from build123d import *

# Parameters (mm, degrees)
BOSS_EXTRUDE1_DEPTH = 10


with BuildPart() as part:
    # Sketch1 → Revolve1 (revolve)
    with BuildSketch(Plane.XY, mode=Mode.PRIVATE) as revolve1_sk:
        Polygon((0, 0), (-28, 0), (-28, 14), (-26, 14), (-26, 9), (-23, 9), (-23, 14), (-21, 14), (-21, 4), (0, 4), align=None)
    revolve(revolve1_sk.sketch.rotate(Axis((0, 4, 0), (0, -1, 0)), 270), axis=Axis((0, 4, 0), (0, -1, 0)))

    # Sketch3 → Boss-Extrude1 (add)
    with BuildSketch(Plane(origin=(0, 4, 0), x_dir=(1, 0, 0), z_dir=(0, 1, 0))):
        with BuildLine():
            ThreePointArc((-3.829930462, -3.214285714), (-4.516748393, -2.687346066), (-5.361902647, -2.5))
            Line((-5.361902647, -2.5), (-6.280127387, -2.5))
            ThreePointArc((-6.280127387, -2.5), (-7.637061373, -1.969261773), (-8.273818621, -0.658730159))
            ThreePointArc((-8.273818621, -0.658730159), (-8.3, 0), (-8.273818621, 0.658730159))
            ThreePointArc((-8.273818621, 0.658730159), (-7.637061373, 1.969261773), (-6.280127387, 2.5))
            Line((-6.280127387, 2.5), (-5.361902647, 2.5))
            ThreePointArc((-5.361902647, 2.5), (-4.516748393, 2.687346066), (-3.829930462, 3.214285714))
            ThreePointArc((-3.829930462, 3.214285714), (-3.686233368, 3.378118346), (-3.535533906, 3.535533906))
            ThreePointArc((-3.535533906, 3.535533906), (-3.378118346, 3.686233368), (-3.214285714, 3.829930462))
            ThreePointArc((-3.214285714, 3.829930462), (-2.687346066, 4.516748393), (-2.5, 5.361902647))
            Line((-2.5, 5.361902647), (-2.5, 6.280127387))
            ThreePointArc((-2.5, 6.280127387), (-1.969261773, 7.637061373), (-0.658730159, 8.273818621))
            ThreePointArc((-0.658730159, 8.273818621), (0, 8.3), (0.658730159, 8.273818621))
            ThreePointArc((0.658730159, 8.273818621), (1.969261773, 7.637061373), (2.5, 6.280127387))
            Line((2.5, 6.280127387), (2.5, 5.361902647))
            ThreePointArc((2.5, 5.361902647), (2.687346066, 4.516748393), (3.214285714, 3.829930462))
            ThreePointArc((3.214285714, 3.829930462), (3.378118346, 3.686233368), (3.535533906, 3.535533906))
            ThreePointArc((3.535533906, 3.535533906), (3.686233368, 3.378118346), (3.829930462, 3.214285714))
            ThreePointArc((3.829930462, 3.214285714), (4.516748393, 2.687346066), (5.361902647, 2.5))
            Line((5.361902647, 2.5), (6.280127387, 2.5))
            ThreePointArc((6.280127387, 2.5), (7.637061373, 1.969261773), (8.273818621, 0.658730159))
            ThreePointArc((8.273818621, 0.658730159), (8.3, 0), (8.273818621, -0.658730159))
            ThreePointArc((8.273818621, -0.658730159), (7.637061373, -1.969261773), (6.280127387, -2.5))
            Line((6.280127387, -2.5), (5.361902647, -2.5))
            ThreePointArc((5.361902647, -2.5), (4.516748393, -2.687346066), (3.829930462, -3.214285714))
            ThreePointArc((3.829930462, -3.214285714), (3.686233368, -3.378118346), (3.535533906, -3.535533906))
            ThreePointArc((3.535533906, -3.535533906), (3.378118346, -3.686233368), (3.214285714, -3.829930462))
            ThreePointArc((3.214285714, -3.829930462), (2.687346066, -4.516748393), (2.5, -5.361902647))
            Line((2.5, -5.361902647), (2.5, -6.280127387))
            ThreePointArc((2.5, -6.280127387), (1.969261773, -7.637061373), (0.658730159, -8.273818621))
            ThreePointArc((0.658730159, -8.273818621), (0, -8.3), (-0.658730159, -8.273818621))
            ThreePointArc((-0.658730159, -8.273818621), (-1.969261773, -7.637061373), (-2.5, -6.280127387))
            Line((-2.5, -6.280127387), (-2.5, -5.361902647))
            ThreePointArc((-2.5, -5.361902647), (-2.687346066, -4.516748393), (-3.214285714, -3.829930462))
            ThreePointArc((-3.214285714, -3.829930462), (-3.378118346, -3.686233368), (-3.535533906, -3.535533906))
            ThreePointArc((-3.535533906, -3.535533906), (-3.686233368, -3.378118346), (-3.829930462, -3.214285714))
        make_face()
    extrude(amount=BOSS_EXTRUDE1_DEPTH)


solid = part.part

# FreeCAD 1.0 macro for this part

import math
import FreeCAD as App
import Part
import Sketcher
from FreeCAD import Vector
Q = App.Units.Quantity

doc = App.newDocument("Part")
body = doc.addObject("PartDesign::Body", "Body")

sketch1 = body.newObject("Sketcher::SketchObject", "Sketch")
sketch1.AttachmentSupport = (doc.getObject("XY_Plane"), [""])
sketch1.MapMode = "FlatFace"
sketch1.addGeometry([
    Part.LineSegment(Vector(-28, 0, 0), Vector(0, 0, 0)),
    Part.LineSegment(Vector(0, 0, 0), Vector(0, 4, 0)),
    Part.LineSegment(Vector(0, 4, 0), Vector(-21, 4, 0)),
    Part.LineSegment(Vector(-21, 4, 0), Vector(-21, 14, 0)),
    Part.LineSegment(Vector(-21, 14, 0), Vector(-23, 14, 0)),
    Part.LineSegment(Vector(-23, 14, 0), Vector(-23, 9, 0)),
    Part.LineSegment(Vector(-23, 9, 0), Vector(-26, 9, 0)),
    Part.LineSegment(Vector(-26, 9, 0), Vector(-26, 14, 0)),
    Part.LineSegment(Vector(-26, 14, 0), Vector(-28, 14, 0)),
    Part.LineSegment(Vector(-28, 14, 0), Vector(-28, 0, 0)),
], False)
sketch1.addConstraint([
    Sketcher.Constraint("Coincident", 0, 2, 1, 1),
    Sketcher.Constraint("Coincident", 1, 2, 2, 1),
    Sketcher.Constraint("Coincident", 2, 2, 3, 1),
    Sketcher.Constraint("Coincident", 3, 2, 4, 1),
    Sketcher.Constraint("Coincident", 4, 2, 5, 1),
    Sketcher.Constraint("Coincident", 5, 2, 6, 1),
    Sketcher.Constraint("Coincident", 6, 2, 7, 1),
    Sketcher.Constraint("Coincident", 7, 2, 8, 1),
    Sketcher.Constraint("Coincident", 8, 2, 9, 1),
    Sketcher.Constraint("Coincident", 9, 2, 0, 1),
    Sketcher.Constraint("Horizontal", 0),
    Sketcher.Constraint("Vertical", 1),
    Sketcher.Constraint("Horizontal", 2),
    Sketcher.Constraint("Vertical", 3),
    Sketcher.Constraint("Horizontal", 4),
    Sketcher.Constraint("Vertical", 5),
    Sketcher.Constraint("Horizontal", 6),
    Sketcher.Constraint("Vertical", 7),
    Sketcher.Constraint("Horizontal", 8),
    Sketcher.Constraint("Vertical", 9),
    Sketcher.Constraint("Coincident", 0, 2, -1, 1),
    Sketcher.Constraint("Horizontal", 4, 2, 7, 2),
    Sketcher.Constraint("Equal", 4, 8),
    Sketcher.Constraint("DistanceX", 0, 1, 0, 2, Q("28 mm")),
    Sketcher.Constraint("DistanceX", 2, 2, 2, 1, Q("21 mm")),
    Sketcher.Constraint("DistanceX", 4, 2, 4, 1, Q("2 mm")),
    Sketcher.Constraint("DistanceY", 1, 1, 1, 2, Q("4 mm")),
    Sketcher.Constraint("DistanceY", 3, 1, 3, 2, Q("10 mm")),
    Sketcher.Constraint("DistanceY", 5, 2, 5, 1, Q("5 mm")),
])
revolution = body.newObject("PartDesign::Revolution", "Revolution")
revolution.Profile = sketch1
revolution.ReferenceAxis = (sketch1, ["V_Axis"])
revolution.Angle = 360

sketch2 = body.newObject("Sketcher::SketchObject", "Sketch001")
sketch2.AttachmentSupport = (doc.getObject("XZ_Plane"), [""])
sketch2.MapMode = "FlatFace"
sketch2.AttachmentOffset = App.Placement(Vector(0, 0, -4), App.Rotation())
sketch2.addGeometry([
    Part.ArcOfCircle(Part.Circle(Vector(-5.36, 4.5, 0), Vector(0, 0, 1), 2), math.radians(-90), math.radians(-40)),
    Part.ArcOfCircle(Part.Circle(Vector(0, 0, 0), Vector(0, 0, 1), 5), math.radians(135), math.radians(139.99)),
    Part.ArcOfCircle(Part.Circle(Vector(0, 0, 0), Vector(0, 0, 1), 5), math.radians(130.01), math.radians(135)),
    Part.ArcOfCircle(Part.Circle(Vector(-4.5, 5.36, 0), Vector(0, 0, 1), 2), math.radians(-50), math.radians(0)),
    Part.LineSegment(Vector(-2.5, 5.36, 0), Vector(-2.5, 6.28, 0)),
    Part.ArcOfCircle(Part.Circle(Vector(-0.5, 6.28, 0), Vector(0, 0, 1), 2), math.radians(95), math.radians(180)),
    Part.ArcOfCircle(Part.Circle(Vector(0, 0, 0), Vector(0, 0, 1), 8.3), math.radians(85.45), math.radians(94.55)),
    Part.ArcOfCircle(Part.Circle(Vector(0.5, 6.28, 0), Vector(0, 0, 1), 2), math.radians(0), math.radians(85)),
    Part.LineSegment(Vector(2.5, 6.28, 0), Vector(2.5, 5.36, 0)),
    Part.ArcOfCircle(Part.Circle(Vector(4.5, 5.36, 0), Vector(0, 0, 1), 2), math.radians(-180), math.radians(-130)),
    Part.ArcOfCircle(Part.Circle(Vector(0, 0, 0), Vector(0, 0, 1), 5), math.radians(45), math.radians(49.99)),
    Part.ArcOfCircle(Part.Circle(Vector(0, 0, 0), Vector(0, 0, 1), 5), math.radians(40.01), math.radians(45)),
    Part.ArcOfCircle(Part.Circle(Vector(5.36, 4.5, 0), Vector(0, 0, 1), 2), math.radians(-140), math.radians(-90)),
    Part.LineSegment(Vector(5.36, 2.5, 0), Vector(6.28, 2.5, 0)),
    Part.ArcOfCircle(Part.Circle(Vector(6.28, 0.5, 0), Vector(0, 0, 1), 2), math.radians(5), math.radians(90)),
    Part.ArcOfCircle(Part.Circle(Vector(0, 0, 0), Vector(0, 0, 1), 8.3), math.radians(-4.55), math.radians(4.55)),
    Part.ArcOfCircle(Part.Circle(Vector(6.28, -0.5, 0), Vector(0, 0, 1), 2), math.radians(-90), math.radians(-5)),
    Part.LineSegment(Vector(6.28, -2.5, 0), Vector(5.36, -2.5, 0)),
    Part.ArcOfCircle(Part.Circle(Vector(5.36, -4.5, 0), Vector(0, 0, 1), 2), math.radians(90), math.radians(140)),
    Part.ArcOfCircle(Part.Circle(Vector(0, 0, 0), Vector(0, 0, 1), 5), math.radians(-45), math.radians(-40.01)),
    Part.ArcOfCircle(Part.Circle(Vector(0, 0, 0), Vector(0, 0, 1), 5), math.radians(-49.99), math.radians(-45)),
    Part.ArcOfCircle(Part.Circle(Vector(4.5, -5.36, 0), Vector(0, 0, 1), 2), math.radians(130), math.radians(180)),
    Part.LineSegment(Vector(2.5, -5.36, 0), Vector(2.5, -6.28, 0)),
    Part.ArcOfCircle(Part.Circle(Vector(0.5, -6.28, 0), Vector(0, 0, 1), 2), math.radians(-85), math.radians(0)),
    Part.ArcOfCircle(Part.Circle(Vector(0, 0, 0), Vector(0, 0, 1), 8.3), math.radians(-94.55), math.radians(-85.45)),
    Part.ArcOfCircle(Part.Circle(Vector(-0.5, -6.28, 0), Vector(0, 0, 1), 2), math.radians(180), math.radians(265)),
    Part.LineSegment(Vector(-2.5, -6.28, 0), Vector(-2.5, -5.36, 0)),
    Part.ArcOfCircle(Part.Circle(Vector(-4.5, -5.36, 0), Vector(0, 0, 1), 2), math.radians(0), math.radians(50)),
    Part.ArcOfCircle(Part.Circle(Vector(0, 0, 0), Vector(0, 0, 1), 5), math.radians(-135), math.radians(-130.01)),
    Part.ArcOfCircle(Part.Circle(Vector(0, 0, 0), Vector(0, 0, 1), 5), math.radians(-139.99), math.radians(-135)),
    Part.ArcOfCircle(Part.Circle(Vector(-5.36, -4.5, 0), Vector(0, 0, 1), 2), math.radians(40), math.radians(90)),
    Part.LineSegment(Vector(-5.36, -2.5, 0), Vector(-6.28, -2.5, 0)),
    Part.ArcOfCircle(Part.Circle(Vector(-6.28, -0.5, 0), Vector(0, 0, 1), 2), math.radians(-175), math.radians(-90)),
    Part.ArcOfCircle(Part.Circle(Vector(0, 0, 0), Vector(0, 0, 1), 8.3), math.radians(175.45), math.radians(184.55)),
    Part.ArcOfCircle(Part.Circle(Vector(-6.28, 0.5, 0), Vector(0, 0, 1), 2), math.radians(90), math.radians(175)),
    Part.LineSegment(Vector(-6.28, 2.5, 0), Vector(-5.36, 2.5, 0)),
], False)
sketch2.addConstraint([
    Sketcher.Constraint("Tangent", 0, 2, 1, 2),
    Sketcher.Constraint("Tangent", 1, 1, 2, 2),
    Sketcher.Constraint("Tangent", 2, 1, 3, 1),
    Sketcher.Constraint("Tangent", 3, 2, 4, 1),
    Sketcher.Constraint("Tangent", 4, 2, 5, 2),
    Sketcher.Constraint("Tangent", 5, 1, 6, 2),
    Sketcher.Constraint("Tangent", 6, 1, 7, 2),
    Sketcher.Constraint("Tangent", 7, 1, 8, 1),
    Sketcher.Constraint("Tangent", 8, 2, 9, 1),
    Sketcher.Constraint("Tangent", 9, 2, 10, 2),
    Sketcher.Constraint("Tangent", 10, 1, 11, 2),
    Sketcher.Constraint("Tangent", 11, 1, 12, 1),
    Sketcher.Constraint("Tangent", 12, 2, 13, 1),
    Sketcher.Constraint("Tangent", 13, 2, 14, 2),
    Sketcher.Constraint("Tangent", 14, 1, 15, 2),
    Sketcher.Constraint("Tangent", 15, 1, 16, 2),
    Sketcher.Constraint("Tangent", 16, 1, 17, 1),
    Sketcher.Constraint("Tangent", 17, 2, 18, 1),
    Sketcher.Constraint("Tangent", 18, 2, 19, 2),
    Sketcher.Constraint("Tangent", 19, 1, 20, 2),
    Sketcher.Constraint("Tangent", 20, 1, 21, 1),
    Sketcher.Constraint("Tangent", 21, 2, 22, 1),
    Sketcher.Constraint("Tangent", 22, 2, 23, 2),
    Sketcher.Constraint("Tangent", 23, 1, 24, 2),
    Sketcher.Constraint("Tangent", 24, 1, 25, 2),
    Sketcher.Constraint("Tangent", 25, 1, 26, 1),
    Sketcher.Constraint("Tangent", 26, 2, 27, 1),
    Sketcher.Constraint("Tangent", 27, 2, 28, 2),
    Sketcher.Constraint("Tangent", 28, 1, 29, 2),
    Sketcher.Constraint("Tangent", 29, 1, 30, 1),
    Sketcher.Constraint("Tangent", 30, 2, 31, 1),
    Sketcher.Constraint("Tangent", 31, 2, 32, 2),
    Sketcher.Constraint("Tangent", 32, 1, 33, 2),
    Sketcher.Constraint("Tangent", 33, 1, 34, 2),
    Sketcher.Constraint("Tangent", 34, 1, 35, 1),
    Sketcher.Constraint("Tangent", 35, 2, 0, 1),
    Sketcher.Constraint("Vertical", 4),
    Sketcher.Constraint("Vertical", 8),
    Sketcher.Constraint("Horizontal", 13),
    Sketcher.Constraint("Horizontal", 17),
    Sketcher.Constraint("Vertical", 22),
    Sketcher.Constraint("Vertical", 26),
    Sketcher.Constraint("Horizontal", 31),
    Sketcher.Constraint("Horizontal", 35),
    Sketcher.Constraint("Coincident", 1, 3, -1, 1),
    Sketcher.Constraint("Coincident", 6, 3, -1, 1),
    Sketcher.Constraint("Coincident", 10, 3, -1, 1),
    Sketcher.Constraint("Coincident", 15, 3, -1, 1),
    Sketcher.Constraint("Coincident", 19, 3, -1, 1),
    Sketcher.Constraint("Coincident", 24, 3, -1, 1),
    Sketcher.Constraint("Coincident", 28, 3, -1, 1),
    Sketcher.Constraint("Coincident", 33, 3, -1, 1),
    Sketcher.Constraint("Equal", 1, 2),
    Sketcher.Constraint("Equal", 0, 3),
    Sketcher.Constraint("Equal", 3, 5),
    Sketcher.Constraint("Equal", 5, 7),
    Sketcher.Constraint("Equal", 7, 9),
    Sketcher.Constraint("Equal", 2, 10),
    Sketcher.Constraint("Equal", 10, 11),
    Sketcher.Constraint("Equal", 9, 12),
    Sketcher.Constraint("Equal", 12, 14),
    Sketcher.Constraint("Equal", 6, 15),
    Sketcher.Constraint("Equal", 14, 16),
    Sketcher.Constraint("Equal", 16, 18),
    Sketcher.Constraint("Equal", 11, 19),
    Sketcher.Constraint("Equal", 19, 20),
    Sketcher.Constraint("Equal", 18, 21),
    Sketcher.Constraint("Equal", 21, 23),
    Sketcher.Constraint("Equal", 15, 24),
    Sketcher.Constraint("Equal", 23, 25),
    Sketcher.Constraint("Equal", 25, 27),
    Sketcher.Constraint("Equal", 20, 28),
    Sketcher.Constraint("Equal", 28, 29),
    Sketcher.Constraint("Equal", 27, 30),
    Sketcher.Constraint("Equal", 30, 32),
    Sketcher.Constraint("Equal", 24, 33),
    Sketcher.Constraint("Equal", 32, 34),
    Sketcher.Constraint("Horizontal", 5, 3, 7, 3),
    Sketcher.Constraint("Horizontal", 0, 3, 12, 3),
    Sketcher.Constraint("Horizontal", 23, 3, 25, 3),
    Sketcher.Constraint("Horizontal", 18, 3, 30, 3),
    Sketcher.Constraint("Horizontal", 1, 1, 10, 1),
    Sketcher.Constraint("Horizontal", 19, 1, 28, 1),
    Sketcher.Constraint("Vertical", 14, 3, 16, 3),
    Sketcher.Constraint("Vertical", 9, 3, 21, 3),
    Sketcher.Constraint("Vertical", 10, 1, 19, 1),
    Sketcher.Constraint("Equal", 35, 4),
    Sketcher.Constraint("Radius", 0, Q("2 mm")),
    Sketcher.Constraint("Radius", 1, Q("4.999999 mm")),
    Sketcher.Constraint("Radius", 6, Q("8.3 mm")),
    Sketcher.Constraint("DistanceY", -1, 1, 0, 3, Q("4.5 mm")),
    Sketcher.Constraint("DistanceX", 1, 1, -1, 1, Q("3.535534 mm")),
])
pad1 = body.newObject("PartDesign::Pad", "Pad")
pad1.Profile = sketch2
pad1.Length = 10
pad1.Reversed = True

doc.recompute()
